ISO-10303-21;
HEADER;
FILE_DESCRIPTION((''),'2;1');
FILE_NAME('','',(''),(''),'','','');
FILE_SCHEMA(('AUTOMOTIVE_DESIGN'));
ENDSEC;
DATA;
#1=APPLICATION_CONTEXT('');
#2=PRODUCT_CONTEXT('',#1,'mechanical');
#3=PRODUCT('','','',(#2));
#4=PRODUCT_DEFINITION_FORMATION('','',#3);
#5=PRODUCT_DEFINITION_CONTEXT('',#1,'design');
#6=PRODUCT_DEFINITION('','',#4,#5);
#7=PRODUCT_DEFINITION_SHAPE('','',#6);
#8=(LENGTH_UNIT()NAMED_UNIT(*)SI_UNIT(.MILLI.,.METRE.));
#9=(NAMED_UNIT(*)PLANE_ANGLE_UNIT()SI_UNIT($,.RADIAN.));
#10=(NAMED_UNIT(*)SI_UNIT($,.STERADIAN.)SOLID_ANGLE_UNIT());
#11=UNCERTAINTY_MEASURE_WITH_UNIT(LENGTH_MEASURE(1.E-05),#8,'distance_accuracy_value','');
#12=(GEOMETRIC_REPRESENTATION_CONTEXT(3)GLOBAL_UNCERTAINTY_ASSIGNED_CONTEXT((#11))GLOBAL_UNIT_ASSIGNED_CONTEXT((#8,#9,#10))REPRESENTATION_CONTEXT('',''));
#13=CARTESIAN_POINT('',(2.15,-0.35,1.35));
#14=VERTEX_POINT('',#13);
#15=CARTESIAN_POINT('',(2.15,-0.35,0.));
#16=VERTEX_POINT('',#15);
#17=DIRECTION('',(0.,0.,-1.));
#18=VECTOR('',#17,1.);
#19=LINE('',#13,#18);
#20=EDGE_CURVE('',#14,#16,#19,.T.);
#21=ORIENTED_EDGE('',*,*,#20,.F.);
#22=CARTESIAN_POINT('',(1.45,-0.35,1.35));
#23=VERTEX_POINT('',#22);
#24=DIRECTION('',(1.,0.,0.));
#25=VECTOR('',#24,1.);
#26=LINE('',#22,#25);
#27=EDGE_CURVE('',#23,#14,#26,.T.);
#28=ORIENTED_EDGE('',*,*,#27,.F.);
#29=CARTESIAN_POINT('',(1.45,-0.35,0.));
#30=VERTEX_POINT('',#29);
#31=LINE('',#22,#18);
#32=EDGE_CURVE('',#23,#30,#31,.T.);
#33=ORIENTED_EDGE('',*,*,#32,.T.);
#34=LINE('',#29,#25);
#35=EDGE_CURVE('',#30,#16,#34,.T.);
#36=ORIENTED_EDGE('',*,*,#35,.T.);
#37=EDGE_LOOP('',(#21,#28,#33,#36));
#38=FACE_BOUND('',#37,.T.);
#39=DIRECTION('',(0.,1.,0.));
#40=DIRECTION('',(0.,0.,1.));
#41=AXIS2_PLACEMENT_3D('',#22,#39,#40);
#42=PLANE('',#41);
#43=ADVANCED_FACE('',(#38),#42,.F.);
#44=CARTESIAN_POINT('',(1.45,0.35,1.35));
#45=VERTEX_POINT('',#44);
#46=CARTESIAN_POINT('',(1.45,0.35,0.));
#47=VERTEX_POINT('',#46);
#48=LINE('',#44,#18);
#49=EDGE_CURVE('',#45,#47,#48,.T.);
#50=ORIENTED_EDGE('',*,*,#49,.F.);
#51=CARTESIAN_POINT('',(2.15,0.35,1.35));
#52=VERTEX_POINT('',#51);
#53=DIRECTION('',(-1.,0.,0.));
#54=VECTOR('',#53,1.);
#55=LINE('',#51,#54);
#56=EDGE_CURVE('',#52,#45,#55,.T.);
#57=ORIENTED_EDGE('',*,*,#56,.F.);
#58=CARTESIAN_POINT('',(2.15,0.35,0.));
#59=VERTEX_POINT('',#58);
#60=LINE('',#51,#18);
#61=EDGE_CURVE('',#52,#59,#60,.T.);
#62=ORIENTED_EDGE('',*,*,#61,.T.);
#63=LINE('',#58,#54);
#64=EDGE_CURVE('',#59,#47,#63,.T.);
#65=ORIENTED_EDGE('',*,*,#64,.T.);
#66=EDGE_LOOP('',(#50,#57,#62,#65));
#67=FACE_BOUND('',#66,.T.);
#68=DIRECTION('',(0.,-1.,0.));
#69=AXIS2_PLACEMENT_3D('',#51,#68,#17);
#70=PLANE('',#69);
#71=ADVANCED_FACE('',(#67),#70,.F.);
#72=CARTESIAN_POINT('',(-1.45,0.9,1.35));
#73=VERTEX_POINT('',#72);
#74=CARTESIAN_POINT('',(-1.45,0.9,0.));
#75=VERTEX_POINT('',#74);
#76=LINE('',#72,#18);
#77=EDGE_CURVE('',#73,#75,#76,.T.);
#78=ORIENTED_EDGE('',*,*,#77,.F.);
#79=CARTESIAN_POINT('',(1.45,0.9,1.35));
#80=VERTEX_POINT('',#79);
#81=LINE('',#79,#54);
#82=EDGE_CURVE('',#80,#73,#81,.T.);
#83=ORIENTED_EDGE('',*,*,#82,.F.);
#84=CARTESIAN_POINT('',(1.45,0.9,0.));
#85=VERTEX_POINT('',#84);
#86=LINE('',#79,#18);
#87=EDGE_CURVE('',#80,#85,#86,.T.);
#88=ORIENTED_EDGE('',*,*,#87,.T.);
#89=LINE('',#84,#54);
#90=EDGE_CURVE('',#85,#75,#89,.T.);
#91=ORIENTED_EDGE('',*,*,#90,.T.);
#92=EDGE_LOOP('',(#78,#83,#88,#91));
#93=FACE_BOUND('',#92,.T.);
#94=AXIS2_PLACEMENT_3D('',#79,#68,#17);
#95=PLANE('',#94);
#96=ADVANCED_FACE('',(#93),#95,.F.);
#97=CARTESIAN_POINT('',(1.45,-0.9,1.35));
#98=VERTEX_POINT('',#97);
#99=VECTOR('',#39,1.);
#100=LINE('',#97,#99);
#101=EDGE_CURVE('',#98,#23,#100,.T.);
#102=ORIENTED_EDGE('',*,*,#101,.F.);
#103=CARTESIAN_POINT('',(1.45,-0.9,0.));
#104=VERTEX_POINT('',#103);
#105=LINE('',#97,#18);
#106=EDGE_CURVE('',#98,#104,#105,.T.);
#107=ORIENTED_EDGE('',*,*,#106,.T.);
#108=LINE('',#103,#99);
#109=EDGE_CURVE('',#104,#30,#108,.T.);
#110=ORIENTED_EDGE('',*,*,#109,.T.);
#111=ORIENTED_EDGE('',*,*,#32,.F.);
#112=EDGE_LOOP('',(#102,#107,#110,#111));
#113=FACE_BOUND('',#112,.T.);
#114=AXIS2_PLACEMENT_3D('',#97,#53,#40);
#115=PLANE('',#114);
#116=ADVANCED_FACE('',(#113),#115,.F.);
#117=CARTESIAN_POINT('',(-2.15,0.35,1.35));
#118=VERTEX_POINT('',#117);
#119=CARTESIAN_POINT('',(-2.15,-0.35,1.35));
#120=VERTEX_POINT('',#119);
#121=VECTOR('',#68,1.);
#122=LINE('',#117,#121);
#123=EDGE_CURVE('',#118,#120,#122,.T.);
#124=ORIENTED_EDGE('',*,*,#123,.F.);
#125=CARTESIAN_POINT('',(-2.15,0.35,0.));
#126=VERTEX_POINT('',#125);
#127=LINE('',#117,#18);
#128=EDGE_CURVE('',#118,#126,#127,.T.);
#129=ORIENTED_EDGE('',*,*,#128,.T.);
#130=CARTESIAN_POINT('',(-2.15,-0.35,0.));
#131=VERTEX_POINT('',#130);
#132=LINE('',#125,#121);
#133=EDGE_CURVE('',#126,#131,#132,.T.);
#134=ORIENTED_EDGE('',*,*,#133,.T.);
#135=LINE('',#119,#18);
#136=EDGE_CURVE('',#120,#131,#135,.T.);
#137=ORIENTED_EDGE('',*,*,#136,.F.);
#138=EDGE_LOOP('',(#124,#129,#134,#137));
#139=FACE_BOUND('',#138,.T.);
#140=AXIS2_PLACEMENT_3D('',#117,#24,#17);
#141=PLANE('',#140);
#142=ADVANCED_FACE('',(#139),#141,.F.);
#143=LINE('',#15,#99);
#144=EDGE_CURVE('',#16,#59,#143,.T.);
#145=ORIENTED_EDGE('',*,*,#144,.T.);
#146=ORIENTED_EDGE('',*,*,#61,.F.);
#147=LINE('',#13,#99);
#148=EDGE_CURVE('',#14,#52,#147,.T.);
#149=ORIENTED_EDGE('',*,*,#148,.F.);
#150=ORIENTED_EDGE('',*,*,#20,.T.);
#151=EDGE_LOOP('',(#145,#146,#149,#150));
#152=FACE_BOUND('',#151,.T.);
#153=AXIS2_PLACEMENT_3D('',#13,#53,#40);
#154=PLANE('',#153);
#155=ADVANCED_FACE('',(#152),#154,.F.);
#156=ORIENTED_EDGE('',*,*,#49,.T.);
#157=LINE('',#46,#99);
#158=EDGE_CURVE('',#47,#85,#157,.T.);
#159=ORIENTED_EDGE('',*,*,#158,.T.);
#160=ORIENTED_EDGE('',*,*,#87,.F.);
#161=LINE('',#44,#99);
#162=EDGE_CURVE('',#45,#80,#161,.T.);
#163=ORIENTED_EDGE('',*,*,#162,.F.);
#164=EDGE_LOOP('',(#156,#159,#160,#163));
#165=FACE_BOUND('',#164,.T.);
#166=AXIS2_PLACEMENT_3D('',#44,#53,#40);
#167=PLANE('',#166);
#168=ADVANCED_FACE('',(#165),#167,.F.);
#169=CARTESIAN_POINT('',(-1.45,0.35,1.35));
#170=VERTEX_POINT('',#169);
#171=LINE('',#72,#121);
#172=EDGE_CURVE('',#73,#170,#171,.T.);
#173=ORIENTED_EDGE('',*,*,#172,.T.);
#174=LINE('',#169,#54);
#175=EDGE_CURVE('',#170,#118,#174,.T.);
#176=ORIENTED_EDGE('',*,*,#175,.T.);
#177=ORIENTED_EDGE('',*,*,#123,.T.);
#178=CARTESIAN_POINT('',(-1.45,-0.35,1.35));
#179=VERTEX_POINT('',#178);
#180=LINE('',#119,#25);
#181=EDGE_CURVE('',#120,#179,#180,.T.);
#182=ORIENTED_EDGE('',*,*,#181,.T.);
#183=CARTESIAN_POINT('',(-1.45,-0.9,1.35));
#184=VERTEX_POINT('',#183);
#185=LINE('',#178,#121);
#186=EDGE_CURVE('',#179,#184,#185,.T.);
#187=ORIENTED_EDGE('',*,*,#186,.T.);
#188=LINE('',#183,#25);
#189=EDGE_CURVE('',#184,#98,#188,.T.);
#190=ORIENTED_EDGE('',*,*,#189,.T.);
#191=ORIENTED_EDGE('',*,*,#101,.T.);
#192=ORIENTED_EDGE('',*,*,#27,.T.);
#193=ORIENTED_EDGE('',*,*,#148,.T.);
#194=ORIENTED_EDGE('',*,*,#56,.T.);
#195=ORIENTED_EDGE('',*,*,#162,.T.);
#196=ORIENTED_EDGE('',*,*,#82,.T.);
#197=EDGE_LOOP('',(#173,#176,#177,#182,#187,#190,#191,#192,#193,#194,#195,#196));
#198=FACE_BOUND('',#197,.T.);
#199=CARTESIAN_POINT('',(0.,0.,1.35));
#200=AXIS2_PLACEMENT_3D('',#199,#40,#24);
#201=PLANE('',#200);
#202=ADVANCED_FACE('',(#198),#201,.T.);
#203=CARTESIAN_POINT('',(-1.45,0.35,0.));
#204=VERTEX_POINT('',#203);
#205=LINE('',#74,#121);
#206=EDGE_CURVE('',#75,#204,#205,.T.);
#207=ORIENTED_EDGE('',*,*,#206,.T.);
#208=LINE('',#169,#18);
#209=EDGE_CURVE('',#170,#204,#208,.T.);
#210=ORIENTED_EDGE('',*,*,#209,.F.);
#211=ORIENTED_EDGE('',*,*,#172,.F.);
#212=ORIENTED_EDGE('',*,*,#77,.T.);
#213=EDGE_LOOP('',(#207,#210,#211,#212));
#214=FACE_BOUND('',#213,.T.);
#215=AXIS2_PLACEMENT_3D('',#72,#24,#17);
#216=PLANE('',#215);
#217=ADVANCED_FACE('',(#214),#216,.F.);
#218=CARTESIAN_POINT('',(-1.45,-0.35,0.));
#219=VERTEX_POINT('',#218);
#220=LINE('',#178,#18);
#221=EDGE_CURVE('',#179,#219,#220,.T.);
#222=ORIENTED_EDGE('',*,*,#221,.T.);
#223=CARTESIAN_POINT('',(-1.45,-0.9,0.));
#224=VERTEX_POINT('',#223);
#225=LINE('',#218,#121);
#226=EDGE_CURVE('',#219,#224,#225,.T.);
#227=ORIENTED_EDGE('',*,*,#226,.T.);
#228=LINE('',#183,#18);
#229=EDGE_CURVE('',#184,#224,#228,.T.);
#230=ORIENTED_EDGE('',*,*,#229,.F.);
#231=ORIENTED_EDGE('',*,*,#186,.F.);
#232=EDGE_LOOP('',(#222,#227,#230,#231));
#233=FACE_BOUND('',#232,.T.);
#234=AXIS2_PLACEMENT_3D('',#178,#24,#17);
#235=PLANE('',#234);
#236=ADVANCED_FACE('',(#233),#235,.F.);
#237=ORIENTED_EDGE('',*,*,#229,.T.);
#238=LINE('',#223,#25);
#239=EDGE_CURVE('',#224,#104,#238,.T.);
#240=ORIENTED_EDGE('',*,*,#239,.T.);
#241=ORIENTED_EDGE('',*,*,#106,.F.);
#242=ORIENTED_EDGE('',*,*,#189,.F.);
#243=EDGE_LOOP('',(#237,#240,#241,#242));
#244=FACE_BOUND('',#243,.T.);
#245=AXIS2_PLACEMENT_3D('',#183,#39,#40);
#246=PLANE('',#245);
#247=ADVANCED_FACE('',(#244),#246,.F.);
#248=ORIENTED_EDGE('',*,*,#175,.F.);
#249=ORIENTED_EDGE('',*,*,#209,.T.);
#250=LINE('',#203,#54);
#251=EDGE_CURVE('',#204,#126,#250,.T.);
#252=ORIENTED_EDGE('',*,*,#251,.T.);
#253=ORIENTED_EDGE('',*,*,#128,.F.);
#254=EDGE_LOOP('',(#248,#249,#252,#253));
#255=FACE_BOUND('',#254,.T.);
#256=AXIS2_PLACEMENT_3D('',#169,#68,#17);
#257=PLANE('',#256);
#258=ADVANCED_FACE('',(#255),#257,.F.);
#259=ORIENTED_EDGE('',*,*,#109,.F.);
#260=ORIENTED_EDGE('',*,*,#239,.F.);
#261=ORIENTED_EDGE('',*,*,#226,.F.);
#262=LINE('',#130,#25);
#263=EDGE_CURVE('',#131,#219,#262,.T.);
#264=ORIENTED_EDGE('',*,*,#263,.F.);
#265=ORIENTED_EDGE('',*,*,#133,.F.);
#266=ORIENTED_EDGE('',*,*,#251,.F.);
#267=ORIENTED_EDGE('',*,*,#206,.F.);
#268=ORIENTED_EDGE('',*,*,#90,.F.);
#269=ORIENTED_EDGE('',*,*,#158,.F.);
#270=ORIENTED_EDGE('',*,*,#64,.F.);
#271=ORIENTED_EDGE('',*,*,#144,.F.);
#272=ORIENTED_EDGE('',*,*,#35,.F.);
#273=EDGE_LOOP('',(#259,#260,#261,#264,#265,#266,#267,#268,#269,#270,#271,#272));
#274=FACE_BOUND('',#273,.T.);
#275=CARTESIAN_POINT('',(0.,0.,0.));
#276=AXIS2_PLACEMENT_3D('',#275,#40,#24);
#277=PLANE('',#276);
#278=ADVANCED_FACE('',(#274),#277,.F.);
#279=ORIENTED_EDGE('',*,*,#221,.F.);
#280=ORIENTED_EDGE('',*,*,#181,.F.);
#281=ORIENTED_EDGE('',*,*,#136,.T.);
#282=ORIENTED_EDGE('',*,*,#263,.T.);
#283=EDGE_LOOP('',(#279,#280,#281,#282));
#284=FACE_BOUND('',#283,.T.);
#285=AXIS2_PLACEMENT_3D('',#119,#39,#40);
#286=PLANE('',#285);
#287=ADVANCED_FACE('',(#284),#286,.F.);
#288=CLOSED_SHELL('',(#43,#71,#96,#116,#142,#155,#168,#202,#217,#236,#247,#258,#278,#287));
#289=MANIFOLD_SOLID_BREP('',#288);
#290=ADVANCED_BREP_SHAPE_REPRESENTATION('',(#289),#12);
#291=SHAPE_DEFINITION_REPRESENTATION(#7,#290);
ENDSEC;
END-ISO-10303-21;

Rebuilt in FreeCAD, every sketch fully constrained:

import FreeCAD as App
import Part
import Sketcher
from FreeCAD import Vector


def add_polygon(sketch, points):
    """Adds a closed chain of lines whose ends are joined by coincident constraints."""
    first, n = sketch.GeometryCount, len(points)
    for a, b in zip(points, points[1:] + points[:1]):
        sketch.addGeometry(Part.LineSegment(App.Vector(*a, 0), App.Vector(*b, 0)), False)
    for i in range(n):
        sketch.addConstraint(Sketcher.Constraint("Coincident", first + i, 2, first + (i + 1) % n, 1))

doc = App.newDocument("Part")
body = doc.addObject("PartDesign::Body", "Body")

# Sketch on XY plane
sketch1 = doc.addObject("Sketcher::SketchObject", "Sketch")
body.addObject(sketch1)
sketch1.AttachmentSupport = (doc.XY_Plane, [""])
sketch1.MapMode = "FlatFace"
add_polygon(sketch1, [(2.1, 0.3), (1.4, 0.3), (1.4, 0.9), (-1.4, 0.9), (-1.4, 0.3), (-2.1, 0.3), (-2.1, -0.3), (-1.4, -0.3), (-1.4, -0.9), (1.4, -0.9), (1.4, -0.3), (2.1, -0.3)])  # lines 0-11
sketch1.addConstraint([
    Sketcher.Constraint("Horizontal", 0),
    Sketcher.Constraint("Vertical", 1),
    Sketcher.Constraint("Horizontal", 2),
    Sketcher.Constraint("Vertical", 3),
    Sketcher.Constraint("Horizontal", 4),
    Sketcher.Constraint("Vertical", 5),
    Sketcher.Constraint("Horizontal", 6),
    Sketcher.Constraint("Vertical", 7),
    Sketcher.Constraint("Horizontal", 8),
    Sketcher.Constraint("Vertical", 9),
    Sketcher.Constraint("Horizontal", 10),
    Sketcher.Constraint("Vertical", 11),
    Sketcher.Constraint("Symmetric", 0, 2, 6, 2, -1, 1),
    Sketcher.Constraint("Symmetric", 2, 2, 8, 2, -1, 1),
    Sketcher.Constraint("Symmetric", 4, 2, 10, 2, -1, 1),
    Sketcher.Constraint("Symmetric", 0, 2, 3, 2, -2),
    Sketcher.Constraint("Equal", 10, 5),
    Sketcher.Constraint("DistanceX", 0, 2, 0, 1, 0.7),
    Sketcher.Constraint("DistanceX", 2, 2, 2, 1, 2.9),
    Sketcher.Constraint("DistanceY", 1, 1, 1, 2, 0.55),
])
pad1 = doc.addObject("PartDesign::Pad", "Pad")
body.addObject(pad1)
pad1.Profile = sketch1
pad1.Length = 1.35

doc.recompute()
